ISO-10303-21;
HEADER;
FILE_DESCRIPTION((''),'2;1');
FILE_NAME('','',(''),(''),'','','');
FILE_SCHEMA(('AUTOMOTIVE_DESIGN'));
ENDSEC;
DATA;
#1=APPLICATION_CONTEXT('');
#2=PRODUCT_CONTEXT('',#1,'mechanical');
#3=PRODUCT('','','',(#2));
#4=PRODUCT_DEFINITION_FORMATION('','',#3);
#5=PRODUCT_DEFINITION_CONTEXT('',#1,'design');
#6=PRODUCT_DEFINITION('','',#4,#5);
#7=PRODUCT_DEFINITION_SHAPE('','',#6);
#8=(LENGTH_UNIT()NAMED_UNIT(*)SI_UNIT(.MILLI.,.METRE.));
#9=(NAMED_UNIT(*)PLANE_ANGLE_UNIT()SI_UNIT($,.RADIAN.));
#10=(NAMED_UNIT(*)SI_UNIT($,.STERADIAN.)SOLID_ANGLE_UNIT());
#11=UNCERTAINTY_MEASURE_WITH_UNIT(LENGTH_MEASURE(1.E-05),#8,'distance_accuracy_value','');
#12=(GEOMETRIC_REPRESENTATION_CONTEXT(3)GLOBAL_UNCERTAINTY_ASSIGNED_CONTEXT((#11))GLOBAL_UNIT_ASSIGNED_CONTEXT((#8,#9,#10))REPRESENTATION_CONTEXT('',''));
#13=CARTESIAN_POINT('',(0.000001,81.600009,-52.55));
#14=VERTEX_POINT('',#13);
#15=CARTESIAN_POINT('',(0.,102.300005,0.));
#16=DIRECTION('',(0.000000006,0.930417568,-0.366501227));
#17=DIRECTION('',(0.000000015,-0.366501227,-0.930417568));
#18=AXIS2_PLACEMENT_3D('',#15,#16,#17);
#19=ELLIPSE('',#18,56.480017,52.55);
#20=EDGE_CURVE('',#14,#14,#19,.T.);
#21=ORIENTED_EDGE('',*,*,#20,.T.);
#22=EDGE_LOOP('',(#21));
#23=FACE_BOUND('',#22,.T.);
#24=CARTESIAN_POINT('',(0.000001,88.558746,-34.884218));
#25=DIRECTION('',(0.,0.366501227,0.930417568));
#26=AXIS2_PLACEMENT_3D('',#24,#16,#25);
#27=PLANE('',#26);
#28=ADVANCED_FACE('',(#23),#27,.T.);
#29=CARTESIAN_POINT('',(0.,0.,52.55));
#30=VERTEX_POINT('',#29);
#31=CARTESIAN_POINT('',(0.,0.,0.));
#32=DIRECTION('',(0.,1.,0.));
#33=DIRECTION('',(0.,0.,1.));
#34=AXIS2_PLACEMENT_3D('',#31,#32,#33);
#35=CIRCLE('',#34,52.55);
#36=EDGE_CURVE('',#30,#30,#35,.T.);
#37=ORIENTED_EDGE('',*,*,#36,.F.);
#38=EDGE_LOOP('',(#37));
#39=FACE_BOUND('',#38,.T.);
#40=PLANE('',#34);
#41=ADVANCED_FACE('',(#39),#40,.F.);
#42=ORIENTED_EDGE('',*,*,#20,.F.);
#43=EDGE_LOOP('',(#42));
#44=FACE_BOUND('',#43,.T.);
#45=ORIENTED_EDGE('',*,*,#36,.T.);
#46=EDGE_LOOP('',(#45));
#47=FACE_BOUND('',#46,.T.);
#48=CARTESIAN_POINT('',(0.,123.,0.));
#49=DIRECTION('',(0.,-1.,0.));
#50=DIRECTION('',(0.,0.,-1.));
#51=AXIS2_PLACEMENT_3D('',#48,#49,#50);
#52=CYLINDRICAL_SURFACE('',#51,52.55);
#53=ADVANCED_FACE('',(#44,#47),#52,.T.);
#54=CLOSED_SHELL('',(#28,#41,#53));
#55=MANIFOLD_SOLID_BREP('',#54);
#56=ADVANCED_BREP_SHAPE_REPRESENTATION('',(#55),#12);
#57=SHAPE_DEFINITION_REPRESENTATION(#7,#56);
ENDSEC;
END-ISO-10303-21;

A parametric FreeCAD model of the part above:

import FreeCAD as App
import Part
import Sketcher

doc = App.newDocument("Part")
body = doc.addObject("PartDesign::Body", "Body")

# Sketch on XZ plane
sketch1 = body.newObject("Sketcher::SketchObject", "Sketch")
sketch1.AttachmentSupport = (doc.getObject("XZ_Plane"), [""])
sketch1.MapMode = "FlatFace"
sketch1.addGeometry(Part.Circle(App.Vector(0, 0, 0), App.Vector(0, 0, 1), 53), False)
sketch1.addConstraint([
    Sketcher.Constraint("Coincident", 0, 3, -1, 1),
    Sketcher.Constraint("Diameter", 0, 105.1),
])
pad1 = body.newObject("PartDesign::Pad", "Pad")
pad1.Profile = sketch1
pad1.Length = 123
pad1.Reversed = True

# Sketch on an angled plane
sketch2 = body.newObject("Sketcher::SketchObject", "Sketch001")
sketch2.Placement = App.Placement(App.Vector(0.000001, 88.558746, -34.884218), App.Rotation(App.Vector(0, -0.366501227, -0.930417568), App.Vector(-1, 0.000000006, -0.000000002), App.Vector(0.000000006, 0.930417568, -0.366501227), "ZXY"))
sketch2.addGeometry(Part.Circle(App.Vector(-37, 0, 0), App.Vector(0, 0, 1), 71), False)
sketch2.addConstraint([
    Sketcher.Constraint("PointOnObject", 0, 3, -1),
    Sketcher.Constraint("Diameter", 0, 142.560194),
    Sketcher.Constraint("DistanceX", 0, 3, -1, 1, 37.493077),
])
pocket1 = body.newObject("PartDesign::Pocket", "Pocket")
pocket1.Profile = sketch2
pocket1.Length = 136.088476
pocket1.Reversed = True

doc.recompute()
